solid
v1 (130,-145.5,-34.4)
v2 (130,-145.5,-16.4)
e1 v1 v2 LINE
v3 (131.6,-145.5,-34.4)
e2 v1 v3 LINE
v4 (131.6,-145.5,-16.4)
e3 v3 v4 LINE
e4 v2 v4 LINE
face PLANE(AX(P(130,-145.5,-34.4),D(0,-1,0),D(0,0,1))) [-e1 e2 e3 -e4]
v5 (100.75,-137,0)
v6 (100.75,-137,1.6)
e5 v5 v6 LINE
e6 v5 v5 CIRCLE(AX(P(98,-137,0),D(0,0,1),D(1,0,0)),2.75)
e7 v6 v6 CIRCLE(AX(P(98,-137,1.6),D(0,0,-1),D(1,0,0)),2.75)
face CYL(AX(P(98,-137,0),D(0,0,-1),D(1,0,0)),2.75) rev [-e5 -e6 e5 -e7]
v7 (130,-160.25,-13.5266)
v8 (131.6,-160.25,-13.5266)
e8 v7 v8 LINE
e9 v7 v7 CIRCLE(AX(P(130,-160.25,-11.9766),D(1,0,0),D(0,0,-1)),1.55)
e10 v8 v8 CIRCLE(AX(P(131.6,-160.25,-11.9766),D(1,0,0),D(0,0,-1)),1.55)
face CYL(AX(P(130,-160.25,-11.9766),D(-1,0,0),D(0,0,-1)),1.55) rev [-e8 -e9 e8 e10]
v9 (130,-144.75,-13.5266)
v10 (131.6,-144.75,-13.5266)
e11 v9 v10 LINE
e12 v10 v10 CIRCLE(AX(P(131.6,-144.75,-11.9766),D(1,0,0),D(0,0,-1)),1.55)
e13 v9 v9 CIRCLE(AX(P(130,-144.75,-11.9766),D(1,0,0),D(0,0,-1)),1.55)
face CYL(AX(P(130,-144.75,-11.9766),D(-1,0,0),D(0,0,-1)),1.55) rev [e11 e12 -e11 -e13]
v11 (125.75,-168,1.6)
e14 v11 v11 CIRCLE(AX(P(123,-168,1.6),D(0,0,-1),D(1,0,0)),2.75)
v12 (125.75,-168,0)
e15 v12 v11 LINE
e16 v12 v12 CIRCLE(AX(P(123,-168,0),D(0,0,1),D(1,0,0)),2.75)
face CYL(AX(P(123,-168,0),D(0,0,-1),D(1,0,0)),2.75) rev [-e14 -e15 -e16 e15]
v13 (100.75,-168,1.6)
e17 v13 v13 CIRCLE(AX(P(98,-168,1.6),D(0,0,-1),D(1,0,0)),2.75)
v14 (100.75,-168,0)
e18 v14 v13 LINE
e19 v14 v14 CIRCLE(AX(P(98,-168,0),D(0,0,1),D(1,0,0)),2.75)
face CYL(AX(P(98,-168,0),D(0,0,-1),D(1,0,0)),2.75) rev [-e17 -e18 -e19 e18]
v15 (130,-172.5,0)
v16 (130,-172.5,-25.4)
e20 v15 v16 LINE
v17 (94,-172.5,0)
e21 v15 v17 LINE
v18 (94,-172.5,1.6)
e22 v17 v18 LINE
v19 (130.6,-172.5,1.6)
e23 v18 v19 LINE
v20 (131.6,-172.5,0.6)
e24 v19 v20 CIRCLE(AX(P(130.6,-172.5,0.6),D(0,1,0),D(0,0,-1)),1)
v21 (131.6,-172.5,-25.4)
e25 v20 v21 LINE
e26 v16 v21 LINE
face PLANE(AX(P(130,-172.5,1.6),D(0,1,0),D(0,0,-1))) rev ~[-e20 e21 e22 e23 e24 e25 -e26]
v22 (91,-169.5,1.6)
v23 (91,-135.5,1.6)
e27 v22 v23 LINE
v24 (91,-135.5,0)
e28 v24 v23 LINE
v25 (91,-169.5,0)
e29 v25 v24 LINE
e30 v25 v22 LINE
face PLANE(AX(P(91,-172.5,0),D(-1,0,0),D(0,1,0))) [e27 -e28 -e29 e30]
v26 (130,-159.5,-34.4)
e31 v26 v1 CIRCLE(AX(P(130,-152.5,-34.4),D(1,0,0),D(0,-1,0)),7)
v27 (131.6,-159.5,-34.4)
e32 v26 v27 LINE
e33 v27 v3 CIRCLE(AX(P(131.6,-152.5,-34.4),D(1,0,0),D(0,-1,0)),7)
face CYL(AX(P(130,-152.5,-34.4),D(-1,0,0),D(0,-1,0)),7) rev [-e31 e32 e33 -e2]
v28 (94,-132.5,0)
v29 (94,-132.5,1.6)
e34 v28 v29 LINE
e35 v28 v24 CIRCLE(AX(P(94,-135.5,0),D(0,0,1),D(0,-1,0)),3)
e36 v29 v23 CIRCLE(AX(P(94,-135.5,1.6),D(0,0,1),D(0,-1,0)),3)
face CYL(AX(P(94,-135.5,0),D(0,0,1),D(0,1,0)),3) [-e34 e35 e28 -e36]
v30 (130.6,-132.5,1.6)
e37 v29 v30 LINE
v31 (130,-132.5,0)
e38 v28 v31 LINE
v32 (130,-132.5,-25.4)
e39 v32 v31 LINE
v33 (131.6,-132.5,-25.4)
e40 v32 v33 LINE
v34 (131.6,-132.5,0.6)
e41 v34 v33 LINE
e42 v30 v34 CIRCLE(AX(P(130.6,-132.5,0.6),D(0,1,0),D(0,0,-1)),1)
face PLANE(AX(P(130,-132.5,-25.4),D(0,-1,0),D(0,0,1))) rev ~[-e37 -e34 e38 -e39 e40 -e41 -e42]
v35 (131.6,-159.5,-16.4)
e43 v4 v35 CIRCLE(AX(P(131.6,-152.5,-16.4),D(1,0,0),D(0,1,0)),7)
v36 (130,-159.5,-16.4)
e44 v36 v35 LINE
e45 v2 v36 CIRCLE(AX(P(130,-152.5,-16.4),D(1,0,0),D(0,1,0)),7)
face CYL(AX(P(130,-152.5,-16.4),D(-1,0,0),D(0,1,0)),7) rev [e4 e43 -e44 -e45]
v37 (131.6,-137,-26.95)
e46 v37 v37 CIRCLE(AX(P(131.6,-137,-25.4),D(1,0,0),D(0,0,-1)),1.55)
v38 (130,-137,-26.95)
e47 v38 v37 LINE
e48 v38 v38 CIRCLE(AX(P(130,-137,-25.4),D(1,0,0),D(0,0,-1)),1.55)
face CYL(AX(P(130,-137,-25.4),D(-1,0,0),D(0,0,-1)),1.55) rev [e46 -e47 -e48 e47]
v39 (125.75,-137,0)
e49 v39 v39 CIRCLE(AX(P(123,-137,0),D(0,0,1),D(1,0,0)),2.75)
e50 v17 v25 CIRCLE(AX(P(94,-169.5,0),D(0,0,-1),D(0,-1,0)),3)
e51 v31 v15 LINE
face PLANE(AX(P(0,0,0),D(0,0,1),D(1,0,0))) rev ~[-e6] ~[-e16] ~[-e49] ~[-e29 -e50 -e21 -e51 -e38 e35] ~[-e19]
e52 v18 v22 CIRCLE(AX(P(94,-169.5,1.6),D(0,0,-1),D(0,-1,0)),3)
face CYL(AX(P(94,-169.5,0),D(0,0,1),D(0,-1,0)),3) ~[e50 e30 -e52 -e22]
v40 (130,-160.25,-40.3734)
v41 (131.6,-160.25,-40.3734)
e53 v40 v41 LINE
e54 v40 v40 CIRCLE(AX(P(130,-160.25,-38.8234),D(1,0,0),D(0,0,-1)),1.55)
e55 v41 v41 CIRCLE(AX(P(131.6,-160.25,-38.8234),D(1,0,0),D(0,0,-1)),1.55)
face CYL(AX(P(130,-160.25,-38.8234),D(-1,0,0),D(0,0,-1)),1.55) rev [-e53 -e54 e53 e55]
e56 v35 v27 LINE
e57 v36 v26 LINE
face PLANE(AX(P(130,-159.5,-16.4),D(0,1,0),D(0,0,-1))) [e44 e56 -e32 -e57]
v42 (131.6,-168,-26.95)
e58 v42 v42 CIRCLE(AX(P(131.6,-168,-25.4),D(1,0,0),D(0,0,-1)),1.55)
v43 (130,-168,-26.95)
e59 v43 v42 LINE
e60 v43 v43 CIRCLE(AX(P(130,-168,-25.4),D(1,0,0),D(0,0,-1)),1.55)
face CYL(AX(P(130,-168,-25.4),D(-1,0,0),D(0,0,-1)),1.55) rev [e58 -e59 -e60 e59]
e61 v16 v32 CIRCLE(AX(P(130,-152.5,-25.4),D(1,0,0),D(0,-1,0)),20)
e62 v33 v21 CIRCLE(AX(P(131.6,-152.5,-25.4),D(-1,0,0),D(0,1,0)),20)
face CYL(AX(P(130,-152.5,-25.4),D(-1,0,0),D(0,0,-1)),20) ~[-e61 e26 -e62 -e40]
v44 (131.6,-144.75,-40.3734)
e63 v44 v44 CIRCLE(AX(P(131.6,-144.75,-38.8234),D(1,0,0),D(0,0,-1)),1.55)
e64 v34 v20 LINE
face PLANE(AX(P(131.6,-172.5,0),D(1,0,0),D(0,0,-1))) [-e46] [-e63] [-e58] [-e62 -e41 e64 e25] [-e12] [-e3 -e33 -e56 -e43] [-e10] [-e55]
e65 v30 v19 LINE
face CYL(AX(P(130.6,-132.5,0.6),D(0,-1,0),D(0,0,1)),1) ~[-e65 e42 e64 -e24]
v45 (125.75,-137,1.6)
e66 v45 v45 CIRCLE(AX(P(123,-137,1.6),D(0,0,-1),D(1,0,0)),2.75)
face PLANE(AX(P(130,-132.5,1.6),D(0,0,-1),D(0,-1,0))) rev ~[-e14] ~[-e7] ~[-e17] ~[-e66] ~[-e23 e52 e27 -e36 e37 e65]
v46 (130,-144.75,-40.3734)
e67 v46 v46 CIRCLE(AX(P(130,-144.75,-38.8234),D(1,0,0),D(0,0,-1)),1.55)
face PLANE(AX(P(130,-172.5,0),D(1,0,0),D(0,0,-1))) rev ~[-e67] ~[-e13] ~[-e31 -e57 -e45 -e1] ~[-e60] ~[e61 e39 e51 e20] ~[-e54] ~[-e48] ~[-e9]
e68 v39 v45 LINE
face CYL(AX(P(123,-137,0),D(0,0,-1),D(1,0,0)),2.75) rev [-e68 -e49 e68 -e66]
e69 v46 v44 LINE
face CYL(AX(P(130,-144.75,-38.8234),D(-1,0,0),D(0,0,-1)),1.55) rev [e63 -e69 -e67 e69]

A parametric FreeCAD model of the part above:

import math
import FreeCAD as App
import Part
import Sketcher
from FreeCAD import Vector


def edges_at(feature, points):
    """Names of the edges that pass closest to the given points."""
    edges = feature.Shape.Edges
    near = lambda p: min(range(len(edges)), key=lambda i: edges[i].distToShape(Part.Vertex(*p))[0])
    return sorted({f"Edge{near(p) + 1}" for p in points})


def add_polygon(sketch, points):
    """Adds a closed chain of lines whose ends are joined by coincident constraints."""
    first, n = sketch.GeometryCount, len(points)
    for a, b in zip(points, points[1:] + points[:1]):
        sketch.addGeometry(Part.LineSegment(App.Vector(*a, 0), App.Vector(*b, 0)), False)
    for i in range(n):
        sketch.addConstraint(Sketcher.Constraint("Coincident", first + i, 2, first + (i + 1) % n, 1))

doc = App.newDocument("Part")
body = doc.addObject("PartDesign::Body", "Body")

sketch1 = body.newObject("Sketcher::SketchObject", "Sketch")
sketch1.AttachmentSupport = (doc.getObject("XY_Plane"), [""])
sketch1.MapMode = "FlatFace"
add_polygon(sketch1, [(91, -172.5), (130, -172.5), (130, -132.5), (91, -132.5)])
sketch1.addGeometry(Part.Circle(Vector(98, -168, 0), Vector(0, 0, 1), 2.75), False)
sketch1.addGeometry(Part.Circle(Vector(123, -168, 0), Vector(0, 0, 1), 2.75), False)
sketch1.addGeometry(Part.Circle(Vector(98, -137, 0), Vector(0, 0, 1), 2.75), False)
sketch1.addGeometry(Part.Circle(Vector(123, -137, 0), Vector(0, 0, 1), 2.75), False)
sketch1.addConstraint(Sketcher.Constraint("Horizontal", 0))
sketch1.addConstraint(Sketcher.Constraint("Vertical", 1))
sketch1.addConstraint(Sketcher.Constraint("Horizontal", 2))
sketch1.addConstraint(Sketcher.Constraint("Vertical", 3))
sketch1.addConstraint(Sketcher.Constraint("Equal", 4, 5))
sketch1.addConstraint(Sketcher.Constraint("Equal", 5, 6))
sketch1.addConstraint(Sketcher.Constraint("Equal", 6, 7))
sketch1.addConstraint(Sketcher.Constraint("Horizontal", 4, 3, 5, 3))
sketch1.addConstraint(Sketcher.Constraint("Horizontal", 6, 3, 7, 3))
sketch1.addConstraint(Sketcher.Constraint("Vertical", 4, 3, 6, 3))
sketch1.addConstraint(Sketcher.Constraint("Vertical", 5, 3, 7, 3))
sketch1.addConstraint(Sketcher.Constraint("Diameter", 4, 5.5))
sketch1.addConstraint(Sketcher.Constraint("DistanceX", 0, 1, 0, 2, 39.0))
sketch1.addConstraint(Sketcher.Constraint("DistanceY", 1, 1, 1, 2, 40.0))
sketch1.addConstraint(Sketcher.Constraint("DistanceX", 5, 3, 0, 2, 7.0))
sketch1.addConstraint(Sketcher.Constraint("DistanceX", 2, 2, 6, 3, 7.0))
sketch1.addConstraint(Sketcher.Constraint("DistanceY", 0, 2, 5, 3, 4.5))
sketch1.addConstraint(Sketcher.Constraint("DistanceY", 7, 3, 1, 2, 4.5))
sketch1.addConstraint(Sketcher.Constraint("DistanceX", -1, 1, 4, 3, 98.0))
sketch1.addConstraint(Sketcher.Constraint("DistanceY", 4, 3, -1, 1, 168.0))
pad1 = body.newObject("PartDesign::Pad", "Pad")
pad1.Profile = sketch1
pad1.Length = 1.6

sketch2 = body.newObject("Sketcher::SketchObject", "Sketch001")
sketch2.AttachmentSupport = (doc.getObject("YZ_Plane"), [""])
sketch2.MapMode = "FlatFace"
sketch2.AttachmentOffset = App.Placement(Vector(0, 0, 130), App.Rotation())
sketch2.addGeometry(Part.LineSegment(Vector(-132.5, -25.4, 0), Vector(-132.5, 1.6, 0)), False)
sketch2.addGeometry(Part.LineSegment(Vector(-132.5, 1.6, 0), Vector(-172.5, 1.6, 0)), False)
sketch2.addGeometry(Part.LineSegment(Vector(-172.5, 1.6, 0), Vector(-172.5, -25.4, 0)), False)
sketch2.addGeometry(Part.ArcOfCircle(Part.Circle(Vector(-152.5, -25.4, 0), Vector(0, 0, 1), 20), math.radians(180), math.radians(360)), False)
sketch2.addGeometry(Part.Circle(Vector(-160.25, -11.9766, 0), Vector(0, 0, 1), 1.55), False)
sketch2.addGeometry(Part.Circle(Vector(-168, -25.4, 0), Vector(0, 0, 1), 1.55), False)
sketch2.addGeometry(Part.Circle(Vector(-160.25, -38.8234, 0), Vector(0, 0, 1), 1.55), False)
sketch2.addGeometry(Part.Circle(Vector(-144.75, -11.9766, 0), Vector(0, 0, 1), 1.55), False)
sketch2.addGeometry(Part.LineSegment(Vector(-145.5, -16.4, 0), Vector(-145.5, -34.4, 0)), False)
sketch2.addGeometry(Part.ArcOfCircle(Part.Circle(Vector(-152.5, -34.4, 0), Vector(0, 0, 1), 7), math.radians(180), math.radians(360)), False)
sketch2.addGeometry(Part.LineSegment(Vector(-159.5, -34.4, 0), Vector(-159.5, -16.4, 0)), False)
sketch2.addGeometry(Part.ArcOfCircle(Part.Circle(Vector(-152.5, -16.4, 0), Vector(0, 0, 1), 7), math.radians(0), math.radians(180)), False)
sketch2.addGeometry(Part.Circle(Vector(-144.75, -38.8234, 0), Vector(0, 0, 1), 1.55), False)
sketch2.addGeometry(Part.Circle(Vector(-137, -25.4, 0), Vector(0, 0, 1), 1.55), False)
sketch2.addConstraint(Sketcher.Constraint("Coincident", 0, 2, 1, 1))
sketch2.addConstraint(Sketcher.Constraint("Coincident", 1, 2, 2, 1))
sketch2.addConstraint(Sketcher.Constraint("Tangent", 2, 2, 3, 1))
sketch2.addConstraint(Sketcher.Constraint("Tangent", 3, 2, 0, 1))
sketch2.addConstraint(Sketcher.Constraint("Tangent", 8, 2, 9, 2))
sketch2.addConstraint(Sketcher.Constraint("Tangent", 9, 1, 10, 1))
sketch2.addConstraint(Sketcher.Constraint("Tangent", 10, 2, 11, 2))
sketch2.addConstraint(Sketcher.Constraint("Tangent", 11, 1, 8, 1))
sketch2.addConstraint(Sketcher.Constraint("Vertical", 0))
sketch2.addConstraint(Sketcher.Constraint("Horizontal", 1))
sketch2.addConstraint(Sketcher.Constraint("Vertical", 2))
sketch2.addConstraint(Sketcher.Constraint("Vertical", 8))
sketch2.addConstraint(Sketcher.Constraint("Vertical", 10))
sketch2.addConstraint(Sketcher.Constraint("Equal", 4, 5))
sketch2.addConstraint(Sketcher.Constraint("Equal", 5, 6))
sketch2.addConstraint(Sketcher.Constraint("Equal", 6, 7))
sketch2.addConstraint(Sketcher.Constraint("Equal", 7, 12))
sketch2.addConstraint(Sketcher.Constraint("Equal", 12, 13))
sketch2.addConstraint(Sketcher.Constraint("Horizontal", 3, 3, 5, 3))
sketch2.addConstraint(Sketcher.Constraint("Horizontal", 4, 3, 7, 3))
sketch2.addConstraint(Sketcher.Constraint("Horizontal", 6, 3, 12, 3))
sketch2.addConstraint(Sketcher.Constraint("Horizontal", 5, 3, 13, 3))
sketch2.addConstraint(Sketcher.Constraint("Vertical", 4, 3, 6, 3))
sketch2.addConstraint(Sketcher.Constraint("Vertical", 3, 3, 9, 3))
sketch2.addConstraint(Sketcher.Constraint("Vertical", 7, 3, 12, 3))
sketch2.addConstraint(Sketcher.Constraint("Radius", 3, 20.0))
sketch2.addConstraint(Sketcher.Constraint("Radius", 9, 7.0))
sketch2.addConstraint(Sketcher.Constraint("Diameter", 4, 3.1))
sketch2.addConstraint(Sketcher.Constraint("DistanceY", 9, 3, 3, 3, 9.0))
sketch2.addConstraint(Sketcher.Constraint("DistanceY", 3, 3, 11, 3, 9.0))
sketch2.addConstraint(Sketcher.Constraint("DistanceY", -1, 1, 0, 2, 1.6))
sketch2.addConstraint(Sketcher.Constraint("DistanceX", 5, 3, 3, 3, 15.5))
sketch2.addConstraint(Sketcher.Constraint("DistanceX", 4, 3, 7, 3, 15.5))
sketch2.addConstraint(Sketcher.Constraint("DistanceX", 3, 3, 13, 3, 15.5))
sketch2.addConstraint(Sketcher.Constraint("DistanceY", 0, 1, 0, 2, 27.0))
sketch2.addConstraint(Sketcher.Constraint("DistanceX", 5, 3, -1, 1, 168.0))
sketch2.addConstraint(Sketcher.Constraint("DistanceX", 4, 3, -1, 1, 160.25))
sketch2.addConstraint(Sketcher.Constraint("DistanceY", 4, 3, -1, 1, 11.9766))
sketch2.addConstraint(Sketcher.Constraint("DistanceY", 6, 3, -1, 1, 38.8234))
pad2 = body.newObject("PartDesign::Pad", "Pad001")
pad2.Profile = sketch2
pad2.Length = 1.6
doc.recompute()

fillet = body.newObject("PartDesign::Fillet", "Fillet")
fillet.Base = (pad2, edges_at(pad2, [(91, -132.5, 0.8), (91, -172.5, 0.8)]))
fillet.Radius = 3
doc.recompute()

fillet2 = body.newObject("PartDesign::Fillet", "Fillet001")
fillet2.Base = (fillet, edges_at(fillet, [(131.6, -152.5, 1.6)]))
fillet2.Radius = 1

doc.recompute()
